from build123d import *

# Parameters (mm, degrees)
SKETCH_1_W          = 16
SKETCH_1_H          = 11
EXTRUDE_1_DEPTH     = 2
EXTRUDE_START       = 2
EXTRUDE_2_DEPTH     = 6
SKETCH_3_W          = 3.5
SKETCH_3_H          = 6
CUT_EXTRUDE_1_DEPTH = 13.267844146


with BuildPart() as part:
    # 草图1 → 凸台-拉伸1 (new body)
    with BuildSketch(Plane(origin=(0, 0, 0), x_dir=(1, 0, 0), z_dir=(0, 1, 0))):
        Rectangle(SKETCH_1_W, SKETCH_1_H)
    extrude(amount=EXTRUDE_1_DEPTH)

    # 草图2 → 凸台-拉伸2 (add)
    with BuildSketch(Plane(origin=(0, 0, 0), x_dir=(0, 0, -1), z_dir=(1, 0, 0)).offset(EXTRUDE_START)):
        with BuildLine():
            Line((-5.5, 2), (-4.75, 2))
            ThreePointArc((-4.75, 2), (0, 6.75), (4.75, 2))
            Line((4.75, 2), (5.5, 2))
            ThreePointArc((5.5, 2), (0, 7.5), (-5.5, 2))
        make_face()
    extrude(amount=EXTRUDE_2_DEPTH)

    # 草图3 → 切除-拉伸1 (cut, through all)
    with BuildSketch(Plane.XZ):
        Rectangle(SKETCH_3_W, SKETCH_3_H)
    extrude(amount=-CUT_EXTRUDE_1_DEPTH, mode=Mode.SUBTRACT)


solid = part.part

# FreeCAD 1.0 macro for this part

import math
import FreeCAD as App
import Part
import Sketcher


def add_polygon(sketch, points):
    """Adds a closed chain of lines whose ends are joined by coincident constraints."""
    first, n = sketch.GeometryCount, len(points)
    for a, b in zip(points, points[1:] + points[:1]):
        sketch.addGeometry(Part.LineSegment(App.Vector(*a, 0), App.Vector(*b, 0)), False)
    for i in range(n):
        sketch.addConstraint(Sketcher.Constraint("Coincident", first + i, 2, first + (i + 1) % n, 1))

doc = App.newDocument("Part")
body = doc.addObject("PartDesign::Body", "Body")

# Sketch on XZ plane
sketch1 = body.newObject("Sketcher::SketchObject", "Sketch")
sketch1.AttachmentSupport = (doc.getObject("XZ_Plane"), [""])
sketch1.MapMode = "FlatFace"
add_polygon(sketch1, [(-8, -6), (-8, 6), (8, 6), (8, -6)])  # lines 0-3
sketch1.addConstraint(Sketcher.Constraint("Vertical", 0))
sketch1.addConstraint(Sketcher.Constraint("Horizontal", 1))
sketch1.addConstraint(Sketcher.Constraint("Vertical", 2))
sketch1.addConstraint(Sketcher.Constraint("Horizontal", 3))
sketch1.addConstraint(Sketcher.Constraint("Symmetric", 0, 2, 2, 2, -1, 1))
sketch1.addConstraint(Sketcher.Constraint("DistanceX", 1, 1, 1, 2, 16.0))
sketch1.addConstraint(Sketcher.Constraint("DistanceY", 0, 1, 0, 2, 11.0))
pad1 = body.newObject("PartDesign::Pad", "Pad")
pad1.Profile = sketch1
pad1.Length = 2
pad1.Reversed = True

# Sketch on YZ plane
sketch2 = body.newObject("Sketcher::SketchObject", "Sketch001")
sketch2.AttachmentSupport = (doc.getObject("YZ_Plane"), [""])
sketch2.MapMode = "FlatFace"
sketch2.AttachmentOffset = App.Placement(App.Vector(0, 0, 2), App.Rotation())
sketch2.addGeometry(Part.LineSegment(App.Vector(2, 5.5, 0), App.Vector(2, 4.8, 0)), False)
sketch2.addGeometry(Part.ArcOfCircle(Part.Circle(App.Vector(2, 0, 0), App.Vector(0, 0, 1), 4.8), math.radians(-90), math.radians(90)), False)
sketch2.addGeometry(Part.LineSegment(App.Vector(2, -4.8, 0), App.Vector(2, -5.5, 0)), False)
sketch2.addGeometry(Part.ArcOfCircle(Part.Circle(App.Vector(2, 0, 0), App.Vector(0, 0, 1), 5.5), math.radians(-90), math.radians(90)), False)
sketch2.addConstraint(Sketcher.Constraint("Coincident", 0, 2, 1, 2))
sketch2.addConstraint(Sketcher.Constraint("Coincident", 1, 1, 2, 1))
sketch2.addConstraint(Sketcher.Constraint("Coincident", 2, 2, 3, 1))
sketch2.addConstraint(Sketcher.Constraint("Coincident", 3, 2, 0, 1))
sketch2.addConstraint(Sketcher.Constraint("Vertical", 0))
sketch2.addConstraint(Sketcher.Constraint("Vertical", 2))
sketch2.addConstraint(Sketcher.Constraint("Coincident", 3, 3, 1, 3))
sketch2.addConstraint(Sketcher.Constraint("Symmetric", 0, 2, 1, 1, -1))
sketch2.addConstraint(Sketcher.Constraint("Vertical", 3, 3, 0, 2))
sketch2.addConstraint(Sketcher.Constraint("Radius", 3, 5.5))
sketch2.addConstraint(Sketcher.Constraint("Radius", 1, 4.75))
sketch2.addConstraint(Sketcher.Constraint("DistanceX", -1, 1, 1, 3, 2.0))
pad2 = body.newObject("PartDesign::Pad", "Pad001")
pad2.Profile = sketch2
pad2.Length = 6

# Sketch on XZ plane
sketch3 = body.newObject("Sketcher::SketchObject", "Sketch002")
sketch3.AttachmentSupport = (doc.getObject("XZ_Plane"), [""])
sketch3.MapMode = "FlatFace"
add_polygon(sketch3, [(-1.8, 3), (-1.8, -3), (1.8, -3), (1.8, 3)])  # lines 0-3
sketch3.addConstraint(Sketcher.Constraint("Vertical", 0))
sketch3.addConstraint(Sketcher.Constraint("Horizontal", 1))
sketch3.addConstraint(Sketcher.Constraint("Vertical", 2))
sketch3.addConstraint(Sketcher.Constraint("Horizontal", 3))
sketch3.addConstraint(Sketcher.Constraint("Symmetric", 0, 2, 2, 2, -1, 1))
sketch3.addConstraint(Sketcher.Constraint("DistanceY", 0, 2, 0, 1, 6.0))
sketch3.addConstraint(Sketcher.Constraint("DistanceX", 1, 1, 1, 2, 3.5))
pocket1 = body.newObject("PartDesign::Pocket", "Pocket")
pocket1.Profile = sketch3
pocket1.Type = "ThroughAll"

doc.recompute()
